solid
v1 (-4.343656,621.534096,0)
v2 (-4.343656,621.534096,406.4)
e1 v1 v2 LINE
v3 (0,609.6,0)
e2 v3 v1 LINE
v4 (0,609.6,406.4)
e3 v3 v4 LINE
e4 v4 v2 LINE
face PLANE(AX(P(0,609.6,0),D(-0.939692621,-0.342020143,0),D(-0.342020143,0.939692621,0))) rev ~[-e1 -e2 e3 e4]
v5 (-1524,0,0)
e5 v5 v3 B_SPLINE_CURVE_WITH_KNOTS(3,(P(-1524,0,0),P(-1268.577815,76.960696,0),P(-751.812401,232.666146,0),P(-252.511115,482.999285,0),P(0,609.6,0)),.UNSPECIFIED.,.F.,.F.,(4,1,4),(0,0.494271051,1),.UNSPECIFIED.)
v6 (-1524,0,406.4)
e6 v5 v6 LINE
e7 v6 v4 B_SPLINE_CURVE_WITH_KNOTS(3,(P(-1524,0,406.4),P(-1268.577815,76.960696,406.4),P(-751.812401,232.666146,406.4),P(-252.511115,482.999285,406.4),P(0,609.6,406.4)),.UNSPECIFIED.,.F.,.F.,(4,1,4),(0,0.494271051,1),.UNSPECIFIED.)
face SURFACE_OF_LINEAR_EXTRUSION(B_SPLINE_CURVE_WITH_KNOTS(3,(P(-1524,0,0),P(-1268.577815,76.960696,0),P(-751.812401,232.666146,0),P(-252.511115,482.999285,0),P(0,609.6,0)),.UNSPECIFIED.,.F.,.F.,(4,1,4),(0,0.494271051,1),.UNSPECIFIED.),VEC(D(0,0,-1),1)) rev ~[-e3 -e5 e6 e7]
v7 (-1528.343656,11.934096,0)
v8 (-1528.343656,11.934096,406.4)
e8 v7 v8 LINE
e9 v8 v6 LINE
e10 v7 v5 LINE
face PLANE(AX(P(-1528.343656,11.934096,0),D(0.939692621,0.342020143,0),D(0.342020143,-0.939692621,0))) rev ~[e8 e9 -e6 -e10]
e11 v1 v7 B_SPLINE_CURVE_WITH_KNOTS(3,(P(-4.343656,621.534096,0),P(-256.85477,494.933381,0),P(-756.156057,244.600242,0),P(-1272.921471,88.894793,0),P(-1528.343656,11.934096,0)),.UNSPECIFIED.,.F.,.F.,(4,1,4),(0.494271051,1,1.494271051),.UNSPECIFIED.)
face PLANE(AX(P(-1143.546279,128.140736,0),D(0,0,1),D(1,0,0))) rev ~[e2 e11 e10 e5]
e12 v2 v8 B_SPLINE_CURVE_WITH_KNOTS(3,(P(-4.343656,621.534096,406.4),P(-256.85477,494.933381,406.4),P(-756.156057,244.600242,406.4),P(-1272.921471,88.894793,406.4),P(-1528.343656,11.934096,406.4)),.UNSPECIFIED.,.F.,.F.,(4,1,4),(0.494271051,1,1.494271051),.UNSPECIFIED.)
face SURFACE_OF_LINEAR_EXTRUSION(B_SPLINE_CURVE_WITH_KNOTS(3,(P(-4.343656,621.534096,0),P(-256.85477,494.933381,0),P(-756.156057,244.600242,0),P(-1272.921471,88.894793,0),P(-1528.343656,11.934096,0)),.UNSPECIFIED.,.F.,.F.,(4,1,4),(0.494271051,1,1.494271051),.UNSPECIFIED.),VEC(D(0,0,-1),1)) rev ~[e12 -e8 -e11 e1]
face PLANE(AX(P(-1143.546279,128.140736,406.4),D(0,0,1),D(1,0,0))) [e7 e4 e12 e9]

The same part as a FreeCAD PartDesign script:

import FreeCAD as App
import Part
import Sketcher

V = App.Vector
Q = App.Units.Quantity

doc = App.newDocument("Part")
body = doc.addObject("PartDesign::Body", "Body")

sketch1 = doc.addObject("Sketcher::SketchObject", "Sketch")
body.addObject(sketch1)
sketch1.AttachmentSupport = (doc.XY_Plane, [""])
sketch1.MapMode = "FlatFace"
sketch1.addGeometry(Part.LineSegment(V(-1528.343656, 11.934096, 0), V(-1524, 0, 0)), False)
sketch1.addGeometry(Part.BSplineCurve([V(-1524, 0, 0), V(-1268.577815, 76.960696, 0), V(-751.812401, 232.666146, 0), V(-252.511115, 482.999285, 0), V(0, 609.6, 0)], [4, 1, 4], [0, 0.494271051, 1], False, 3, [1, 1, 1, 1, 1], False), False)
sketch1.addGeometry(Part.LineSegment(V(0, 609.6, 0), V(-4.343656, 621.534096, 0)), False)
sketch1.addGeometry(Part.BSplineCurve([V(-4.343656, 621.534096, 0), V(-256.85477, 494.933381, 0), V(-756.156057, 244.600242, 0), V(-1272.921471, 88.894793, 0), V(-1528.343656, 11.934096, 0)], [4, 1, 4], [0.494271051, 1, 1.494271051], False, 3, [1, 1, 1, 1, 1], False), False)
sketch1.addConstraint(Sketcher.Constraint("Block", 1))
sketch1.addConstraint(Sketcher.Constraint("Block", 3))
sketch1.addConstraint(Sketcher.Constraint("Coincident", 0, 2, 1, 1))
sketch1.addConstraint(Sketcher.Constraint("Coincident", 1, 2, 2, 1))
sketch1.addConstraint(Sketcher.Constraint("Coincident", 2, 2, 3, 1))
sketch1.addConstraint(Sketcher.Constraint("Coincident", 3, 2, 0, 1))
pad1 = doc.addObject("PartDesign::Pad", "Pad")
body.addObject(pad1)
pad1.Profile = sketch1
pad1.Length = Q("16 in")

doc.recompute()
